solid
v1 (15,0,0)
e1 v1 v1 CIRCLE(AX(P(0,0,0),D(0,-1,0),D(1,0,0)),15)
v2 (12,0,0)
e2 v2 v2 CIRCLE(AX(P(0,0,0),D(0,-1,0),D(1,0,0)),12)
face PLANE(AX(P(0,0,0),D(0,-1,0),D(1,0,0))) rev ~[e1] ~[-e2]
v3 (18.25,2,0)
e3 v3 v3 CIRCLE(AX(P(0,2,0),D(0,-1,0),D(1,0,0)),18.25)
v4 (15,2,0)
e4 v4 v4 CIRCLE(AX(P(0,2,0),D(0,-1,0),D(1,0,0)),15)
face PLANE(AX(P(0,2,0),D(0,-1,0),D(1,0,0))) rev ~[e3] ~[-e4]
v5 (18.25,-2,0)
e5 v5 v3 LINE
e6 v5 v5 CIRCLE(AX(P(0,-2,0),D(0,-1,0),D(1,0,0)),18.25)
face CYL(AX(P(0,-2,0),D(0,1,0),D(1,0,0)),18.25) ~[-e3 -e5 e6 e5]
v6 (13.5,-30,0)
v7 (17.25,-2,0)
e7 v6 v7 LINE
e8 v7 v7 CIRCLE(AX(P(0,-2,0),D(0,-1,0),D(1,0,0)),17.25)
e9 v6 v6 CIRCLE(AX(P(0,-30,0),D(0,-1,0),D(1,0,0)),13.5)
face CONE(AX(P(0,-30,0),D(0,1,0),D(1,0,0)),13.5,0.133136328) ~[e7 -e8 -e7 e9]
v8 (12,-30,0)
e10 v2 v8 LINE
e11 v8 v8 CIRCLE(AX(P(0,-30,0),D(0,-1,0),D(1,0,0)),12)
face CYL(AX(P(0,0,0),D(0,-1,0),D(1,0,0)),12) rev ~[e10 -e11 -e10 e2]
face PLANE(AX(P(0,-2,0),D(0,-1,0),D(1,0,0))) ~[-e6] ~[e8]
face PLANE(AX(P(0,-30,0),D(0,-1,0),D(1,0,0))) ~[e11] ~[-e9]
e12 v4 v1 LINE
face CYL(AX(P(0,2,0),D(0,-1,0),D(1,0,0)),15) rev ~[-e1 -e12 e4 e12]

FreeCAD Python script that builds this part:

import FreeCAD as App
import Part
import Sketcher
Q = App.Units.Quantity


def add_polygon(sketch, points):
    """Adds a closed chain of lines whose ends are joined by coincident constraints."""
    first, n = sketch.GeometryCount, len(points)
    for a, b in zip(points, points[1:] + points[:1]):
        sketch.addGeometry(Part.LineSegment(App.Vector(*a, 0), App.Vector(*b, 0)), False)
    for i in range(n):
        sketch.addConstraint(Sketcher.Constraint("Coincident", first + i, 2, first + (i + 1) % n, 1))

doc = App.newDocument("Part")
body = doc.addObject("PartDesign::Body", "Body")

sketch1 = body.newObject("Sketcher::SketchObject", "Sketch")
sketch1.AttachmentSupport = (doc.getObject("XY_Plane"), [""])
sketch1.MapMode = "FlatFace"
add_polygon(sketch1, [(15, 0), (12, 0), (12, -30), (13.5, -30), (17.25, -2), (18.25, -2), (18.25, 2), (15, 2)])
sketch1.addConstraint(Sketcher.Constraint("Horizontal", 0))
sketch1.addConstraint(Sketcher.Constraint("Vertical", 1))
sketch1.addConstraint(Sketcher.Constraint("Horizontal", 2))
sketch1.addConstraint(Sketcher.Constraint("Horizontal", 4))
sketch1.addConstraint(Sketcher.Constraint("Vertical", 5))
sketch1.addConstraint(Sketcher.Constraint("Horizontal", 6))
sketch1.addConstraint(Sketcher.Constraint("Vertical", 7))
sketch1.addConstraint(Sketcher.Constraint("PointOnObject", 0, 2, -1))
sketch1.addConstraint(Sketcher.Constraint("DistanceX", 4, 1, 4, 2, Q("1 mm")))
sketch1.addConstraint(Sketcher.Constraint("DistanceY", 1, 2, 1, 1, Q("30 mm")))
sketch1.addConstraint(Sketcher.Constraint("DistanceY", 7, 2, 7, 1, Q("2 mm")))
sketch1.addConstraint(Sketcher.Constraint("DistanceY", 3, 2, -1, 1, Q("2 mm")))
sketch1.addConstraint(Sketcher.Constraint("DistanceX", 0, 2, 0, 1, Q("3 mm")))
sketch1.addConstraint(Sketcher.Constraint("DistanceX", 2, 1, 2, 2, Q("1.5 mm")))
sketch1.addConstraint(Sketcher.Constraint("DistanceX", -1, 1, 0, 2, Q("12 mm")))
sketch1.addConstraint(Sketcher.Constraint("DistanceX", 6, 2, 6, 1, Q("3.25 mm")))
revolution = body.newObject("PartDesign::Revolution", "Revolution")
revolution.Profile = sketch1
revolution.ReferenceAxis = (sketch1, ["V_Axis"])
revolution.Angle = 360

doc.recompute()
